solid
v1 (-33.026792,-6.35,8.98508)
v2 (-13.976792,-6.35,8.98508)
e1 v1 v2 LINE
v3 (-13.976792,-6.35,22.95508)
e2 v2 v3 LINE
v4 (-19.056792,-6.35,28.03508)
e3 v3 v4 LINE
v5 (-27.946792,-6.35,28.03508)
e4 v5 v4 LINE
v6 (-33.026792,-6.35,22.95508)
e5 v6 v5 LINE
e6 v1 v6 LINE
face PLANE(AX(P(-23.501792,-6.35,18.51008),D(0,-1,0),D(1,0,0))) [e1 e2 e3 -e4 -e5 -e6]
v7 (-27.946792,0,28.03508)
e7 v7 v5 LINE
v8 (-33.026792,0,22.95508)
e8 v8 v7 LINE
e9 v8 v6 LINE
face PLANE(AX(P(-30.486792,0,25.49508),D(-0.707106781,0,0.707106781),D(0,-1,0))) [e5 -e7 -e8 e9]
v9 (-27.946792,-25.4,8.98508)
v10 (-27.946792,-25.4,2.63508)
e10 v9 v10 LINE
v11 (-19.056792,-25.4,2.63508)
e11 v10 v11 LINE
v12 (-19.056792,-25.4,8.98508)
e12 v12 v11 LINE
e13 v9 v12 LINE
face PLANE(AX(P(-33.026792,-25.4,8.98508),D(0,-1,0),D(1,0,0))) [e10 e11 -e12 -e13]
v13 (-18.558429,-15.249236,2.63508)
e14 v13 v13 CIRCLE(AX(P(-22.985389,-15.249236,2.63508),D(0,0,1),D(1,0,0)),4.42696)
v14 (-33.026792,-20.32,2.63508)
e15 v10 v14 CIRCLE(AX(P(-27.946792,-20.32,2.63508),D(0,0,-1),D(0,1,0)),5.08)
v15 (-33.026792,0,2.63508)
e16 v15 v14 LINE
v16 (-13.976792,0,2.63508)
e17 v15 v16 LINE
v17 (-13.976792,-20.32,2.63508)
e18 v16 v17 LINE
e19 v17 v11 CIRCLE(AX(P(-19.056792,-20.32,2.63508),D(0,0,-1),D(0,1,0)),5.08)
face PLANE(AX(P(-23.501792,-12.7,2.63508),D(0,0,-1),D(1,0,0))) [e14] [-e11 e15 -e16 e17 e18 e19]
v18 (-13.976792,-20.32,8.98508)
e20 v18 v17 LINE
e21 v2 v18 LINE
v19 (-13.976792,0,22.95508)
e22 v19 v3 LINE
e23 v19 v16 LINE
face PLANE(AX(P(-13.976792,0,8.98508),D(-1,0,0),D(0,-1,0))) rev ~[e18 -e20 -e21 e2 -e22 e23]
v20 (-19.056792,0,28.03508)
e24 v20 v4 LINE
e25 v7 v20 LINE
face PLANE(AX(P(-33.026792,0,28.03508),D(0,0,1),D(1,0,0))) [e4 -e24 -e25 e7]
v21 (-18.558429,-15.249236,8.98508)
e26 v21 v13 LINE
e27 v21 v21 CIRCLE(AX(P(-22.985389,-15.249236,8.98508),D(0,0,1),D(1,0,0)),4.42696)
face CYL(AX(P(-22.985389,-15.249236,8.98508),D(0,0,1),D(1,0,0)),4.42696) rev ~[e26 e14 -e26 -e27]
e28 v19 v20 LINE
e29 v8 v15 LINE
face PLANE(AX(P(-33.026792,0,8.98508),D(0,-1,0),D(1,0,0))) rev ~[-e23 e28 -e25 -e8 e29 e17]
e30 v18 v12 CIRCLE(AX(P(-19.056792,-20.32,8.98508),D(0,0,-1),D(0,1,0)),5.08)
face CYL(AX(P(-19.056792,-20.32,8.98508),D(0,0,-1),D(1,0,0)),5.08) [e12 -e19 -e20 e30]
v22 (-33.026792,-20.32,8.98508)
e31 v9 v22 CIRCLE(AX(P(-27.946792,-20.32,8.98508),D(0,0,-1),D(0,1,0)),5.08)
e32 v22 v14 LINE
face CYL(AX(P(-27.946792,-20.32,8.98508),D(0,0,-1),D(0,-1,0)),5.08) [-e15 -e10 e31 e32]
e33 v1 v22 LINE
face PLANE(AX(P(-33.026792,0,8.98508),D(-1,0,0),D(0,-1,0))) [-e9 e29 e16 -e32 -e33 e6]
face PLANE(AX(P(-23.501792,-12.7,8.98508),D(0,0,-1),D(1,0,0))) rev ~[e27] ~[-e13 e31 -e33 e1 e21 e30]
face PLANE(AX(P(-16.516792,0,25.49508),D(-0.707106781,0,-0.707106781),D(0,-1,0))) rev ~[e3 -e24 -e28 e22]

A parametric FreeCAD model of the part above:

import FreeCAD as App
import Part
import Sketcher

V = App.Vector
Q = App.Units.Quantity


def edges_at(feature, points):
    """Names of the edges that pass closest to the given points."""
    edges = feature.Shape.Edges
    near = lambda p: min(range(len(edges)), key=lambda i: edges[i].distToShape(Part.Vertex(*p))[0])
    return sorted({f"Edge{near(p) + 1}" for p in points})


def add_polygon(sketch, points):
    """Adds a closed chain of lines whose ends are joined by coincident constraints."""
    first, n = sketch.GeometryCount, len(points)
    for a, b in zip(points, points[1:] + points[:1]):
        sketch.addGeometry(Part.LineSegment(App.Vector(*a, 0), App.Vector(*b, 0)), False)
    for i in range(n):
        sketch.addConstraint(Sketcher.Constraint("Coincident", first + i, 2, first + (i + 1) % n, 1))

doc = App.newDocument("Part")
body = doc.addObject("PartDesign::Body", "Body")

# Sketch on XZ plane
sketch1 = body.newObject("Sketcher::SketchObject", "Sketch")
sketch1.AttachmentSupport = (doc.getObject("XZ_Plane"), [""])
sketch1.MapMode = "FlatFace"
add_polygon(sketch1, [(-33, 28), (-33, 9), (-14, 9), (-14, 28)])  # lines 0-3
sketch1.addConstraint(Sketcher.Constraint("Vertical", 0))
sketch1.addConstraint(Sketcher.Constraint("Horizontal", 1))
sketch1.addConstraint(Sketcher.Constraint("Vertical", 2))
sketch1.addConstraint(Sketcher.Constraint("Horizontal", 3))
sketch1.addConstraint(Sketcher.Constraint("Equal", 3, 0))
sketch1.addConstraint(Sketcher.Constraint("DistanceX", 1, 1, 1, 2, Q("0.75 in")))
sketch1.addConstraint(Sketcher.Constraint("DistanceY", -1, 1, 0, 2, 8.98508))
sketch1.addConstraint(Sketcher.Constraint("DistanceX", 0, 2, -1, 1, 33.026792))
pad1 = body.newObject("PartDesign::Pad", "Pad")
pad1.Profile = sketch1
pad1.Length = Q("0.25 in")

# Sketch on XY plane
sketch2 = body.newObject("Sketcher::SketchObject", "Sketch001")
sketch2.AttachmentSupport = (doc.getObject("XY_Plane"), [""])
sketch2.MapMode = "FlatFace"
sketch2.AttachmentOffset = App.Placement(V(0, 0, 8.98508), App.Rotation())
add_polygon(sketch2, [(-33, -25), (-33, 0), (-14, 0), (-14, -25)])  # lines 0-3
sketch2.addConstraint(Sketcher.Constraint("Vertical", 0))
sketch2.addConstraint(Sketcher.Constraint("Horizontal", 1))
sketch2.addConstraint(Sketcher.Constraint("Vertical", 2))
sketch2.addConstraint(Sketcher.Constraint("Horizontal", 3))
sketch2.addConstraint(Sketcher.Constraint("PointOnObject", 0, 2, -1))
sketch2.addConstraint(Sketcher.Constraint("DistanceY", 0, 1, 0, 2, Q("1 in")))
sketch2.addConstraint(Sketcher.Constraint("DistanceX", 1, 1, 1, 2, Q("0.75 in")))
sketch2.addConstraint(Sketcher.Constraint("DistanceX", 0, 2, -1, 1, 33.026792))
pad2 = body.newObject("PartDesign::Pad", "Pad001")
pad2.Profile = sketch2
pad2.Length = Q("0.25 in")
pad2.Reversed = True
doc.recompute()

fillet = body.newObject("PartDesign::Fillet", "Fillet")
fillet.Base = (pad2, edges_at(pad2, [(-13.977, -25.4, 5.81)]))
fillet.Radius = Q("0.2 in")
doc.recompute()

fillet2 = body.newObject("PartDesign::Fillet", "Fillet001")
fillet2.Base = (fillet, edges_at(fillet, [(-33.027, -25.4, 5.81)]))
fillet2.Radius = Q("0.2 in")
doc.recompute()

chamfer = body.newObject("PartDesign::Chamfer", "Chamfer")
chamfer.Base = (fillet2, edges_at(fillet2, [(-13.977, -3.175, 28.035), (-33.027, -3.175, 28.035)]))
chamfer.Size = Q("0.2 in")

# Sketch on XY plane
sketch3 = body.newObject("Sketcher::SketchObject", "Sketch002")
sketch3.AttachmentSupport = (doc.getObject("XY_Plane"), [""])
sketch3.MapMode = "FlatFace"
sketch3.AttachmentOffset = App.Placement(V(0, 0, 8.98508), App.Rotation())
sketch3.addGeometry(Part.Circle(V(-23, -15.2, 0), V(0, 0, 1), 4.4), False)
sketch3.addConstraint(Sketcher.Constraint("Diameter", 0, 8.85392))
sketch3.addConstraint(Sketcher.Constraint("DistanceX", 0, 3, -1, 1, 22.985389))
sketch3.addConstraint(Sketcher.Constraint("DistanceY", 0, 3, -1, 1, 15.249236))
pocket1 = body.newObject("PartDesign::Pocket", "Pocket")
pocket1.Profile = sketch3
pocket1.Type = "ThroughAll"

doc.recompute()
